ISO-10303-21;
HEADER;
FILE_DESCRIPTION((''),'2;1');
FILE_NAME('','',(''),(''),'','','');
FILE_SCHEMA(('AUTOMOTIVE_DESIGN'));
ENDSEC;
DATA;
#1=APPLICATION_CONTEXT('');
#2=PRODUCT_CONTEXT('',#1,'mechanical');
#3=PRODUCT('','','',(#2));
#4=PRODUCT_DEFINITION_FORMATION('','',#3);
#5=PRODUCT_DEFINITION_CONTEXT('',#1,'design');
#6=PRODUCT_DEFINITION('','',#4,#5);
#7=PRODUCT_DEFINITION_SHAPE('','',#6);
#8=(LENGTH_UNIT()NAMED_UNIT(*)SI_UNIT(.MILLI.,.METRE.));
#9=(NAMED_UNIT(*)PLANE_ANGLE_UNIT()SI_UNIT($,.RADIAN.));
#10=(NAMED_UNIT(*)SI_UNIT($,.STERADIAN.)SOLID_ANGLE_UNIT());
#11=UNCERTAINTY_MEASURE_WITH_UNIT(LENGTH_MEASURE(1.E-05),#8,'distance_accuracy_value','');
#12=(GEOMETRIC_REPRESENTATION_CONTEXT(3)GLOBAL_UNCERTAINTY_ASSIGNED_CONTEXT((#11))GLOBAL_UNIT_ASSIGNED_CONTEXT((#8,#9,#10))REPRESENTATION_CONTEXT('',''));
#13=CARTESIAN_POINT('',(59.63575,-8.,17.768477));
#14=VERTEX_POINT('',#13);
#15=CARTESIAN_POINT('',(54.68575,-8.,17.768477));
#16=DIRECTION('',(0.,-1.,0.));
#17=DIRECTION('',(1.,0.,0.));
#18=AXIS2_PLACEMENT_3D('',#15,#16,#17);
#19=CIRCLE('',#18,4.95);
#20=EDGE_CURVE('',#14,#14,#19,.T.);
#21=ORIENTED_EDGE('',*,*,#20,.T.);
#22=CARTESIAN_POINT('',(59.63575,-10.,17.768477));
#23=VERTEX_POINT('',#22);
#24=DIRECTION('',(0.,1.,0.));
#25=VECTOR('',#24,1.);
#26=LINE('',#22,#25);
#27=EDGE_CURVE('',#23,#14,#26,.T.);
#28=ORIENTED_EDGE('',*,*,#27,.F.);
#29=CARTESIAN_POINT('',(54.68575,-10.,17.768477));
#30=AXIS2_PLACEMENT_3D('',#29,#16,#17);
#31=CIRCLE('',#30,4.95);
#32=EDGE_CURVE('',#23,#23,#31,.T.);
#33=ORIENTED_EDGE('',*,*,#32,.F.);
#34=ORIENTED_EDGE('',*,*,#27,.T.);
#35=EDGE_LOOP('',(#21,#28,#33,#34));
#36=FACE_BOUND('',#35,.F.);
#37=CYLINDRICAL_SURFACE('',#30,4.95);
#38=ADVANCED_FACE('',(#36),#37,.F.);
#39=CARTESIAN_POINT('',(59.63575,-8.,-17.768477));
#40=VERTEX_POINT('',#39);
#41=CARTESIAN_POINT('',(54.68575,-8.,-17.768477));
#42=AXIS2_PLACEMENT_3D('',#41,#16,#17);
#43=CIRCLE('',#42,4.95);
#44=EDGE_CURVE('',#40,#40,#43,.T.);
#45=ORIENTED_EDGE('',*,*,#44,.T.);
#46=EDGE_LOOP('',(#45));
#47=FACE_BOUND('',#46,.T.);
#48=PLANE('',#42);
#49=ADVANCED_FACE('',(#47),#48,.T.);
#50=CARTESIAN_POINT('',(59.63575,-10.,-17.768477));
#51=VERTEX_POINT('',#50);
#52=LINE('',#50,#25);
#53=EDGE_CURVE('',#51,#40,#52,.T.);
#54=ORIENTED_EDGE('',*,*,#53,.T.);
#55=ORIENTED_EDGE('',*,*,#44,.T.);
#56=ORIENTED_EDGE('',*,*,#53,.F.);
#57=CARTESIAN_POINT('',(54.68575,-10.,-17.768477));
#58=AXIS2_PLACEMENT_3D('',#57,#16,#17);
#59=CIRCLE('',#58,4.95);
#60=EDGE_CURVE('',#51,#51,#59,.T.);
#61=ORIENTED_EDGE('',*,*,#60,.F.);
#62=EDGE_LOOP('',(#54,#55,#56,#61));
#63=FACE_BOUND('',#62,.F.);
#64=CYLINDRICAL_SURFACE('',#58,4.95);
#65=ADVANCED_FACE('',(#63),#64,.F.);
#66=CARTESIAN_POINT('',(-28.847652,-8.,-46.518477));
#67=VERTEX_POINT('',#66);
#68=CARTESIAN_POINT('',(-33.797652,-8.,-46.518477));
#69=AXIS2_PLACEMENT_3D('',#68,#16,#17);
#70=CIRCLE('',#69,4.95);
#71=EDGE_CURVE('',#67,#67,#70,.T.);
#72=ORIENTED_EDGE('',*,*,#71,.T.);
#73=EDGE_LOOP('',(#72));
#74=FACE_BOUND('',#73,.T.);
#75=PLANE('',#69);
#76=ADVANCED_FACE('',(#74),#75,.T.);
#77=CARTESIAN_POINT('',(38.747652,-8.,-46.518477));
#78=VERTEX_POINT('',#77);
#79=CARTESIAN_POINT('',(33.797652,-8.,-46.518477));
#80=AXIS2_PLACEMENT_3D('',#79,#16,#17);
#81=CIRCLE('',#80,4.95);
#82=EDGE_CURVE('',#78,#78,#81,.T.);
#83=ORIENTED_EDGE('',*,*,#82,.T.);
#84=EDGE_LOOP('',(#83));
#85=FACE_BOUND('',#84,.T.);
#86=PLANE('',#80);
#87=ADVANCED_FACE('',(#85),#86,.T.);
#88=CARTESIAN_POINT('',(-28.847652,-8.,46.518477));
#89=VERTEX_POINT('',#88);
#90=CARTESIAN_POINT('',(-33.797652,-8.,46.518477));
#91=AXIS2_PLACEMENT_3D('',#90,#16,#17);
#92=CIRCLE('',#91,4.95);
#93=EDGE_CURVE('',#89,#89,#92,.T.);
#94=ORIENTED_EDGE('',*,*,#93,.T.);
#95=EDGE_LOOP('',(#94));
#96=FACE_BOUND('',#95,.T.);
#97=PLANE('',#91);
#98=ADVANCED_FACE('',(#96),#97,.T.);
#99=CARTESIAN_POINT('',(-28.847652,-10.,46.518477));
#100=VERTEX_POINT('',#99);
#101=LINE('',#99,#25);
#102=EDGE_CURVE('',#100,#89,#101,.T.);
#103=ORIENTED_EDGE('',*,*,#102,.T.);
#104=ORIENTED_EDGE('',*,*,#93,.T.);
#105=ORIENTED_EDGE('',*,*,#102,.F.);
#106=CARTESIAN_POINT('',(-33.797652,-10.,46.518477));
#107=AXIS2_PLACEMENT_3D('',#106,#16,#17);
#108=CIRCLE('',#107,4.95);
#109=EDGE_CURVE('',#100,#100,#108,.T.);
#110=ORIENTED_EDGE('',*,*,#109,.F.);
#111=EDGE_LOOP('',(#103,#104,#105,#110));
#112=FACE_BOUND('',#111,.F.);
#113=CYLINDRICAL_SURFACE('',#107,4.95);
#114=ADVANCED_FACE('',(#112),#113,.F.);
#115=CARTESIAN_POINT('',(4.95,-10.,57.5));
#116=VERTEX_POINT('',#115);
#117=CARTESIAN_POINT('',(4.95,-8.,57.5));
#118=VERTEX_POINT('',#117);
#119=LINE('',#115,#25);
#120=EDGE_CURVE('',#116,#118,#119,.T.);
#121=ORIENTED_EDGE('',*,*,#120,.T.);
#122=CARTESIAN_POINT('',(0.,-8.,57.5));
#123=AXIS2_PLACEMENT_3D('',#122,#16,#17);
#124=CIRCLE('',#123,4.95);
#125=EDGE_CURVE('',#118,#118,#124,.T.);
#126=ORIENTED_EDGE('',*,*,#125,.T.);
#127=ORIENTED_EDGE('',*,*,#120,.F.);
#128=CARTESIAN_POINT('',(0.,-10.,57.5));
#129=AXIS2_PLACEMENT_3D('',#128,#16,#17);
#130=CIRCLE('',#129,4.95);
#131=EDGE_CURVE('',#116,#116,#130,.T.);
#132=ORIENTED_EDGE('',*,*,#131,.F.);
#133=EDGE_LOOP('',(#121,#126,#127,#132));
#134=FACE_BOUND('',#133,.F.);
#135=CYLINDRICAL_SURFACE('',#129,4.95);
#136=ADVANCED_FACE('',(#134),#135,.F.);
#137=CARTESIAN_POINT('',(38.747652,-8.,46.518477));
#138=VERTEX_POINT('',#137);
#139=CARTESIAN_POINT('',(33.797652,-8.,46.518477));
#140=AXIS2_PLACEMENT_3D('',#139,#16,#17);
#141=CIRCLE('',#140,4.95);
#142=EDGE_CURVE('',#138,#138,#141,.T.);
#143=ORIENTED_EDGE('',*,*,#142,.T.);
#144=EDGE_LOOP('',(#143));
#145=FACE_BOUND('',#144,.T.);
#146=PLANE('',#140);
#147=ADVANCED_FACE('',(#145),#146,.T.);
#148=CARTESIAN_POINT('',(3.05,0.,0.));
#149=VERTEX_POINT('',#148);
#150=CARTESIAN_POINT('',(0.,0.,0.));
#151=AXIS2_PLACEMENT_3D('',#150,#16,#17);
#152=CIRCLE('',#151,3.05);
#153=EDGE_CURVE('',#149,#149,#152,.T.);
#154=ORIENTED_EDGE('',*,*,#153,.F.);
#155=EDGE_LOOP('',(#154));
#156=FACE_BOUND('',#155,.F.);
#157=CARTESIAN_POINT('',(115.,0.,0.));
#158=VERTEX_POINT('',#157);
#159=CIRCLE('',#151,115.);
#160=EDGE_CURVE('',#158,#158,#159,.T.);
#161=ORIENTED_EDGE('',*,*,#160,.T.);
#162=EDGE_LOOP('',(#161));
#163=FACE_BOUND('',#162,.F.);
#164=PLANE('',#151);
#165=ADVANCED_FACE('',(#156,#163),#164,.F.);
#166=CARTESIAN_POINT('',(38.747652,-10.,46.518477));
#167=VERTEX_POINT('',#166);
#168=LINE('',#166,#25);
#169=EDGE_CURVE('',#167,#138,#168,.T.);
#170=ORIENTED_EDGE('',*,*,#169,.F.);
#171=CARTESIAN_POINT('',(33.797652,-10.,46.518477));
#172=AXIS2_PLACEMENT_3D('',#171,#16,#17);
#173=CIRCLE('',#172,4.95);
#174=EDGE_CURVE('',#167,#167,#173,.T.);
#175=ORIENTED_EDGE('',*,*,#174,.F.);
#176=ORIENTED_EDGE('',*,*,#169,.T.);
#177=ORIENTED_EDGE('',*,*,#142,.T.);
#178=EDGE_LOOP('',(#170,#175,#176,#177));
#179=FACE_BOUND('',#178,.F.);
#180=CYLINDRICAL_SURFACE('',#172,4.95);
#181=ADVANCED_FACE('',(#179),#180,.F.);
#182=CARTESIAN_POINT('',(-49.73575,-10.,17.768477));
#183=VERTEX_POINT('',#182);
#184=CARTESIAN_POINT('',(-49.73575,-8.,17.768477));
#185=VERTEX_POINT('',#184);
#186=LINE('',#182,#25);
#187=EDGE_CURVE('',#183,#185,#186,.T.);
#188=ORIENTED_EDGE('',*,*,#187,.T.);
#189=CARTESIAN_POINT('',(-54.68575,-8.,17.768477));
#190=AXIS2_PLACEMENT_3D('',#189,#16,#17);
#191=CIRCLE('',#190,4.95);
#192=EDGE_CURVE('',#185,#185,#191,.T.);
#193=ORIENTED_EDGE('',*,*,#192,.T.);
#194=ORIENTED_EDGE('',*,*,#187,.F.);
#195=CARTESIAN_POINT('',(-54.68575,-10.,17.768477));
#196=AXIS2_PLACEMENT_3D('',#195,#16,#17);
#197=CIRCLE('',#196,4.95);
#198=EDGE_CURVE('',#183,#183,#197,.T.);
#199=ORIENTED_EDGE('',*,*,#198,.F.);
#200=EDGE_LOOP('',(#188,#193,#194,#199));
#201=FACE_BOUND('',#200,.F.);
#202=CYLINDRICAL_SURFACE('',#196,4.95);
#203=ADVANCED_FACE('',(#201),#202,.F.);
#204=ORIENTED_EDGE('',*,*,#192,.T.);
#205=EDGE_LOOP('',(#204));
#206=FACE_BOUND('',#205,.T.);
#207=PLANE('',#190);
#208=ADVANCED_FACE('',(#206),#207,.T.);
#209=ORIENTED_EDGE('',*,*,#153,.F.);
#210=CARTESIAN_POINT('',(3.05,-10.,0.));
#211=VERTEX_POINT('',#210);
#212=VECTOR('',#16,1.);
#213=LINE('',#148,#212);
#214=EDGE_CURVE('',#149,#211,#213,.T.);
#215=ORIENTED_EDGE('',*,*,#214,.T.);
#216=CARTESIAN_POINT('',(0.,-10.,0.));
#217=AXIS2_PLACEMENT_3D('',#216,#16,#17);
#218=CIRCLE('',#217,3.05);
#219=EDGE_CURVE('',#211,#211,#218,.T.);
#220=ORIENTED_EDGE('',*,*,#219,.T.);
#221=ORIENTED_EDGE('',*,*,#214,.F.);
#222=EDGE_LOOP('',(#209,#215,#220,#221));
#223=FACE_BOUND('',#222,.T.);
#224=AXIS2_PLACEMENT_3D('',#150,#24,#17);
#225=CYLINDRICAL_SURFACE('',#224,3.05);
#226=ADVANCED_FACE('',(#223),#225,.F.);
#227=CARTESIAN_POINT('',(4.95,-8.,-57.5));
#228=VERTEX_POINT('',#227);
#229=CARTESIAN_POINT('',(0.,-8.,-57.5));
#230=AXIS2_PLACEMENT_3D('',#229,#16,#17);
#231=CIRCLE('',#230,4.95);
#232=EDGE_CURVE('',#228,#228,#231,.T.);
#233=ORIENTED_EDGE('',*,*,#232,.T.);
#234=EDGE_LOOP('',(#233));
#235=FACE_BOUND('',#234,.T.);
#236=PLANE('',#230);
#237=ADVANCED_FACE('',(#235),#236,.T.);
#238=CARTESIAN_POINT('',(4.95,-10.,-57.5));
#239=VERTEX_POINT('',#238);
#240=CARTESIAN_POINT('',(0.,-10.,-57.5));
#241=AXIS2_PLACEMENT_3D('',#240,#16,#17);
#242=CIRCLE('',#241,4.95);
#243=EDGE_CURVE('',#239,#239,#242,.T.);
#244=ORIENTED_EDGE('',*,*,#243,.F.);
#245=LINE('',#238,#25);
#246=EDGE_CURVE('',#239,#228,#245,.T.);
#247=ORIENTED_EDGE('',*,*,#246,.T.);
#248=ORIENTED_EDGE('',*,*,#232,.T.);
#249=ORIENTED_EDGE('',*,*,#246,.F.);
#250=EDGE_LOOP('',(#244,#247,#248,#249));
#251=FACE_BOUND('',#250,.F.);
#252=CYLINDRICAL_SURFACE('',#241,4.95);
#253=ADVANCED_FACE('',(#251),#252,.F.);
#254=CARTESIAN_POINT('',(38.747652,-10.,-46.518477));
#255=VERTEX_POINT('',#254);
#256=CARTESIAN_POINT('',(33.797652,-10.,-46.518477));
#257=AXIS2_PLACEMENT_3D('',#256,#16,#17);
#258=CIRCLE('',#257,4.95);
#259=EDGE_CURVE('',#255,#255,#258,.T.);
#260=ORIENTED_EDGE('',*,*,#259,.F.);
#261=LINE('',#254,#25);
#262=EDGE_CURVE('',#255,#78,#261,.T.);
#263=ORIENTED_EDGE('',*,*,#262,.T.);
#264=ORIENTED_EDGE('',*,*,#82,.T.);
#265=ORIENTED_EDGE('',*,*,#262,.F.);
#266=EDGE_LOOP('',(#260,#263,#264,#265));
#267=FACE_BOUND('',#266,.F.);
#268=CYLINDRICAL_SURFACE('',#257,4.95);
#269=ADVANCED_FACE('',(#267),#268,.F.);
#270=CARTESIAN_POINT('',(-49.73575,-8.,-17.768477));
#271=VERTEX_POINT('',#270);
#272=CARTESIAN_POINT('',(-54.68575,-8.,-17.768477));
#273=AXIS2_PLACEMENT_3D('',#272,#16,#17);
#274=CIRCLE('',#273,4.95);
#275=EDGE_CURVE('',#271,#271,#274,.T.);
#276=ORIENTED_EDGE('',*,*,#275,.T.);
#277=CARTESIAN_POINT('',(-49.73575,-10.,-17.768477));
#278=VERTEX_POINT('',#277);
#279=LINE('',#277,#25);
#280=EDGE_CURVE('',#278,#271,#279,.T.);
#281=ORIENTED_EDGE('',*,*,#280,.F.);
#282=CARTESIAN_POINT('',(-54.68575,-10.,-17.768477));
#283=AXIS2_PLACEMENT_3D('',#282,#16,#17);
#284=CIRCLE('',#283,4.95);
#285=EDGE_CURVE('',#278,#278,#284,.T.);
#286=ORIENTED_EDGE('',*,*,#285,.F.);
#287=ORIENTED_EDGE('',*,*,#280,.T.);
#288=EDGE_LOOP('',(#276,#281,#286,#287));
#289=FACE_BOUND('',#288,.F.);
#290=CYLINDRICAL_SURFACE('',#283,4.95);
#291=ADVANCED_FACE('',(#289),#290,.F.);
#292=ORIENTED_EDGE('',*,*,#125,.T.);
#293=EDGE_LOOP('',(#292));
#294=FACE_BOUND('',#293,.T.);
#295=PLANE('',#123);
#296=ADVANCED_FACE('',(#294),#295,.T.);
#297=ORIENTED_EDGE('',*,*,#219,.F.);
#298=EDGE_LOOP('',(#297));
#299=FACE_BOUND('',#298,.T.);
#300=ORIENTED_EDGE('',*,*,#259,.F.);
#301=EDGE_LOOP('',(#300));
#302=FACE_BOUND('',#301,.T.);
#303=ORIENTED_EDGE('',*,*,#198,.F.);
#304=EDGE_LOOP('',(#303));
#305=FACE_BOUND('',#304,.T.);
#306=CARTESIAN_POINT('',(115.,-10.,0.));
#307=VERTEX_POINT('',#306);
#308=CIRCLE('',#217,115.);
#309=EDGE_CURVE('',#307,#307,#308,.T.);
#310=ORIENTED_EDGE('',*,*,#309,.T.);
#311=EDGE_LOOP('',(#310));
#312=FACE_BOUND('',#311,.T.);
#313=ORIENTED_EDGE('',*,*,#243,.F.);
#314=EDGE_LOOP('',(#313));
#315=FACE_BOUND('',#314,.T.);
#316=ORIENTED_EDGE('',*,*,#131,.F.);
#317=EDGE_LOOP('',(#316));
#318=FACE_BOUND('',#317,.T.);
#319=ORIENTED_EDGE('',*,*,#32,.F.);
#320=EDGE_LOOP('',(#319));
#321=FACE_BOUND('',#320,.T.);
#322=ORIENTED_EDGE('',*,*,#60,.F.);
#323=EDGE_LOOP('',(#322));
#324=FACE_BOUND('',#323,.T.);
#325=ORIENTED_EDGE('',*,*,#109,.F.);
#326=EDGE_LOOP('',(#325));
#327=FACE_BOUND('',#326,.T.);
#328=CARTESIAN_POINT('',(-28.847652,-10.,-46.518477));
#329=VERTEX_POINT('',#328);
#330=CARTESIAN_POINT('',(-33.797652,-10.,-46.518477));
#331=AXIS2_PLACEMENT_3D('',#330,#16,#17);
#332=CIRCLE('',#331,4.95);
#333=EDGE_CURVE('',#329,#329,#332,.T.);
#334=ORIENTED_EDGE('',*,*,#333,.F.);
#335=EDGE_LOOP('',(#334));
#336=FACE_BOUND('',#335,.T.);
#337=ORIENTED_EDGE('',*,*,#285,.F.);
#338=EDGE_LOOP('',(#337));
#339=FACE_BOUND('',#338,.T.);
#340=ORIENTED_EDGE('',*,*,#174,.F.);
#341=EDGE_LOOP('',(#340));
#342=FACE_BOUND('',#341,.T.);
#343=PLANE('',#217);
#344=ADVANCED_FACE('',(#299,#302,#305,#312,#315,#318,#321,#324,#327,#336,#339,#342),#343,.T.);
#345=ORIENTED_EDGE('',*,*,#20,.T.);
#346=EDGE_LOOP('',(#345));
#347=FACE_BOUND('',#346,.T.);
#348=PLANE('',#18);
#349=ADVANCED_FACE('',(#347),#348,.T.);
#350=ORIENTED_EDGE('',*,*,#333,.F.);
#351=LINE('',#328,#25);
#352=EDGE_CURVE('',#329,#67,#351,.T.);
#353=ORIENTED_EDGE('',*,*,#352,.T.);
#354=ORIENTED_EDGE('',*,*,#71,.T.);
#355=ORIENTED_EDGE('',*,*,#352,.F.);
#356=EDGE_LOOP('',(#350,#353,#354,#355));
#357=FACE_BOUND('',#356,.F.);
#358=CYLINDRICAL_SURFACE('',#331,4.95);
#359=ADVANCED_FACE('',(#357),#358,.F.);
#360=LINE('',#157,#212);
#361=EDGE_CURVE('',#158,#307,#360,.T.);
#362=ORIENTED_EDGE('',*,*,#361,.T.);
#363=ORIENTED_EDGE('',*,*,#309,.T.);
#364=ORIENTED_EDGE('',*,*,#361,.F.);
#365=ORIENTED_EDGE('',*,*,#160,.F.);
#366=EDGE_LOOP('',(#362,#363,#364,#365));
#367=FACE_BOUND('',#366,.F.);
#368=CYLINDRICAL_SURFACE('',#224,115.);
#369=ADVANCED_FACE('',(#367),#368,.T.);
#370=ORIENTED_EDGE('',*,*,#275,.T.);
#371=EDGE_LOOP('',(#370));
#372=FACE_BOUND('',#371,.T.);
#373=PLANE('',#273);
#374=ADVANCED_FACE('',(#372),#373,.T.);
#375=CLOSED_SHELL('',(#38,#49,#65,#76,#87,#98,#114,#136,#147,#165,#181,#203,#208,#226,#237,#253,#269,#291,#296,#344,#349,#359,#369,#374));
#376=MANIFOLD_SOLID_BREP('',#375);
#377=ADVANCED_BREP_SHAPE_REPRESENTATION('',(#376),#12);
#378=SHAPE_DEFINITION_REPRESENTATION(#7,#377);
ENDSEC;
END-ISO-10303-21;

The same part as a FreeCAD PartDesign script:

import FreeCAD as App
import Part
import Sketcher
from FreeCAD import Vector
Q = App.Units.Quantity

doc = App.newDocument("Part")
body = doc.addObject("PartDesign::Body", "Body")

# Sketch on XZ plane
sketch1 = body.newObject("Sketcher::SketchObject", "Sketch")
sketch1.AttachmentSupport = (doc.getObject("XZ_Plane"), [""])
sketch1.MapMode = "FlatFace"
sketch1.addGeometry(Part.Circle(Vector(0, 0, 0), Vector(0, 0, 1), 115), False)
sketch1.addGeometry(Part.Circle(Vector(0, 0, 0), Vector(0, 0, 1), 3), False)
sketch1.addConstraint(Sketcher.Constraint("Coincident", 0, 3, -1, 1))
sketch1.addConstraint(Sketcher.Constraint("Coincident", 1, 3, -1, 1))
sketch1.addConstraint(Sketcher.Constraint("Diameter", 0, Q("230 mm")))
sketch1.addConstraint(Sketcher.Constraint("Diameter", 1, Q("6.1 mm")))
pad1 = body.newObject("PartDesign::Pad", "Pad")
pad1.Profile = sketch1
pad1.Length = 10

# Sketch on XZ plane
sketch2 = body.newObject("Sketcher::SketchObject", "Sketch001")
sketch2.AttachmentSupport = (doc.getObject("XZ_Plane"), [""])
sketch2.MapMode = "FlatFace"
sketch2.AttachmentOffset = App.Placement(Vector(0, 0, 10), App.Rotation())
sketch2.addGeometry(Part.Circle(Vector(0, 57.5, 0), Vector(0, 0, 1), 5), False)
sketch2.addGeometry(Part.Circle(Vector(-33.8, 46.5, 0), Vector(0, 0, 1), 5), False)
sketch2.addGeometry(Part.Circle(Vector(-54.7, 17.8, 0), Vector(0, 0, 1), 5), False)
sketch2.addGeometry(Part.Circle(Vector(-54.7, -17.8, 0), Vector(0, 0, 1), 5), False)
sketch2.addGeometry(Part.Circle(Vector(-33.8, -46.5, 0), Vector(0, 0, 1), 5), False)
sketch2.addGeometry(Part.Circle(Vector(0, -57.5, 0), Vector(0, 0, 1), 5), False)
sketch2.addGeometry(Part.Circle(Vector(33.8, -46.5, 0), Vector(0, 0, 1), 5), False)
sketch2.addGeometry(Part.Circle(Vector(54.7, -17.8, 0), Vector(0, 0, 1), 5), False)
sketch2.addGeometry(Part.Circle(Vector(54.7, 17.8, 0), Vector(0, 0, 1), 5), False)
sketch2.addGeometry(Part.Circle(Vector(33.8, 46.5, 0), Vector(0, 0, 1), 5), False)
sketch2.addConstraint(Sketcher.Constraint("Equal", 0, 1))
sketch2.addConstraint(Sketcher.Constraint("Equal", 1, 2))
sketch2.addConstraint(Sketcher.Constraint("Equal", 2, 3))
sketch2.addConstraint(Sketcher.Constraint("Equal", 3, 4))
sketch2.addConstraint(Sketcher.Constraint("Equal", 4, 5))
sketch2.addConstraint(Sketcher.Constraint("Equal", 5, 6))
sketch2.addConstraint(Sketcher.Constraint("Equal", 6, 7))
sketch2.addConstraint(Sketcher.Constraint("Equal", 7, 8))
sketch2.addConstraint(Sketcher.Constraint("Equal", 8, 9))
sketch2.addConstraint(Sketcher.Constraint("Symmetric", 0, 3, 5, 3, -1, 1))
sketch2.addConstraint(Sketcher.Constraint("Symmetric", 1, 3, 6, 3, -1, 1))
sketch2.addConstraint(Sketcher.Constraint("Symmetric", 2, 3, 7, 3, -1, 1))
sketch2.addConstraint(Sketcher.Constraint("Symmetric", 3, 3, 8, 3, -1, 1))
sketch2.addConstraint(Sketcher.Constraint("Symmetric", 4, 3, 9, 3, -1, 1))
sketch2.addConstraint(Sketcher.Constraint("Symmetric", 4, 3, 6, 3, -2))
sketch2.addConstraint(Sketcher.Constraint("Symmetric", 3, 3, 7, 3, -2))
sketch2.addConstraint(Sketcher.Constraint("PointOnObject", 0, 3, -2))
sketch2.addConstraint(Sketcher.Constraint("Diameter", 0, Q("9.9 mm")))
sketch2.addConstraint(Sketcher.Constraint("DistanceY", 5, 3, 0, 3, Q("115 mm")))
sketch2.addConstraint(Sketcher.Constraint("DistanceY", 2, 3, 1, 3, Q("28.75 mm")))
sketch2.addConstraint(Sketcher.Constraint("DistanceX", 3, 3, 6, 3, Q("88.483402 mm")))
sketch2.addConstraint(Sketcher.Constraint("DistanceX", 2, 3, -1, 1, Q("54.68575 mm")))
sketch2.addConstraint(Sketcher.Constraint("DistanceY", -1, 1, 1, 3, Q("46.518477 mm")))
pocket1 = body.newObject("PartDesign::Pocket", "Pocket")
pocket1.Profile = sketch2
pocket1.Length = 2

doc.recompute()
